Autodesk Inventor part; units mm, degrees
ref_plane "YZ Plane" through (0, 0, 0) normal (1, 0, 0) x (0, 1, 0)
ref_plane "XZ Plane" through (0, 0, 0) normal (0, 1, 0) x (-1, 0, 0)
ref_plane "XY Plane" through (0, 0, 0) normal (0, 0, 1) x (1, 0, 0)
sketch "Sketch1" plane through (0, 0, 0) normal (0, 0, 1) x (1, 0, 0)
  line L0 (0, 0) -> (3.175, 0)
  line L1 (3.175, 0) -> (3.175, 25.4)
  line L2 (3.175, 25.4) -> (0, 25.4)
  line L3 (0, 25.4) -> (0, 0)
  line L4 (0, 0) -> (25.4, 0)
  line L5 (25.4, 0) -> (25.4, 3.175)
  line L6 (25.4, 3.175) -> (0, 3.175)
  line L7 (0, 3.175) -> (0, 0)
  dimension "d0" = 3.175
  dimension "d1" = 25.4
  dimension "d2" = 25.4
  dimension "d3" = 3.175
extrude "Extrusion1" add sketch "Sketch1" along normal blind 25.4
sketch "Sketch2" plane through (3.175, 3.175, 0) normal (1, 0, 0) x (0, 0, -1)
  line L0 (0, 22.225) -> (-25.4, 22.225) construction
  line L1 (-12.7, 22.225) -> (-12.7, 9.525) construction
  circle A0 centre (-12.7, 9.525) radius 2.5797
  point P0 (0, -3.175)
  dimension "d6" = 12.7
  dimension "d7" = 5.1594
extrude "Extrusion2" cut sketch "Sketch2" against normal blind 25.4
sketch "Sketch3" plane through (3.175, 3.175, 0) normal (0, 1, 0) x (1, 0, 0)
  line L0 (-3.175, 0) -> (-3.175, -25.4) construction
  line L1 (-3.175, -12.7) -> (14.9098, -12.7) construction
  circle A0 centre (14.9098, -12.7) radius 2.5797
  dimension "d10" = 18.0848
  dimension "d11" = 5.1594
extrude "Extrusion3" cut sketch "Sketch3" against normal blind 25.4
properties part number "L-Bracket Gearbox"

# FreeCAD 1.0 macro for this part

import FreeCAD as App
import Part
import Sketcher

V = App.Vector
Q = App.Units.Quantity

doc = App.newDocument("Part")
body = doc.addObject("PartDesign::Body", "Body")

# Sketch on XY plane
sketch1 = body.newObject("Sketcher::SketchObject", "Sketch")
sketch1.AttachmentSupport = (doc.getObject("XY_Plane"), [""])
sketch1.MapMode = "FlatFace"
sketch1.addGeometry([
    Part.LineSegment(V(0, 0, 0), V(25.4, 0, 0)),  # 0
    Part.LineSegment(V(25.4, 0, 0), V(25.4, 3.175, 0)),  # 1
    Part.LineSegment(V(25.4, 3.175, 0), V(3.175, 3.175, 0)),  # 2
    Part.LineSegment(V(3.175, 3.175, 0), V(3.175, 25.4, 0)),  # 3
    Part.LineSegment(V(3.175, 25.4, 0), V(0, 25.4, 0)),  # 4
    Part.LineSegment(V(0, 25.4, 0), V(0, 0, 0)),  # 5
], False)
sketch1.addConstraint([
    Sketcher.Constraint("Coincident", 0, 2, 1, 1),
    Sketcher.Constraint("Coincident", 1, 2, 2, 1),
    Sketcher.Constraint("Coincident", 2, 2, 3, 1),
    Sketcher.Constraint("Coincident", 3, 2, 4, 1),
    Sketcher.Constraint("Coincident", 4, 2, 5, 1),
    Sketcher.Constraint("Coincident", 5, 2, 0, 1),
    Sketcher.Constraint("Horizontal", 0),
    Sketcher.Constraint("Vertical", 1),
    Sketcher.Constraint("Horizontal", 2),
    Sketcher.Constraint("Vertical", 3),
    Sketcher.Constraint("Horizontal", 4),
    Sketcher.Constraint("Vertical", 5),
    Sketcher.Constraint("Coincident", 5, 2, -1, 1),
    Sketcher.Constraint("Equal", 4, 1),
    Sketcher.Constraint("Equal", 2, 3),
    Sketcher.Constraint("DistanceX", 0, 1, 0, 2, Q("1 in")),
    Sketcher.Constraint("DistanceX", 4, 2, 4, 1, Q("0.125 in")),
])
pad1 = body.newObject("PartDesign::Pad", "Pad")
pad1.Profile = sketch1
pad1.Length = Q("1 in")

# Sketch on YZ plane
sketch2 = body.newObject("Sketcher::SketchObject", "Sketch001")
sketch2.AttachmentSupport = (doc.getObject("YZ_Plane"), [""])
sketch2.MapMode = "FlatFace"
sketch2.AttachmentOffset = App.Placement(V(0, 0, 0.125 * 25.4), App.Rotation())
sketch2.addGeometry(Part.Circle(V(12.7, 12.7, 0), V(0, 0, 1), 2.5797), False)
sketch2.addConstraint([
    Sketcher.Constraint("Diameter", 0, Q("0.203126 in")),
    Sketcher.Constraint("DistanceX", -1, 1, 0, 3, Q("0.5 in")),
    Sketcher.Constraint("DistanceY", -1, 1, 0, 3, Q("0.5 in")),
])
pocket1 = body.newObject("PartDesign::Pocket", "Pocket")
pocket1.Profile = sketch2
pocket1.Length = Q("1 in")

# Sketch on XZ plane
sketch3 = body.newObject("Sketcher::SketchObject", "Sketch002")
sketch3.AttachmentSupport = (doc.getObject("XZ_Plane"), [""])
sketch3.MapMode = "FlatFace"
sketch3.AttachmentOffset = App.Placement(V(0, 0, -0.125 * 25.4), App.Rotation())
sketch3.addGeometry(Part.Circle(V(18.0848, 12.7, 0), V(0, 0, 1), 2.5797), False)
sketch3.addConstraint([
    Sketcher.Constraint("Diameter", 0, Q("0.203126 in")),
    Sketcher.Constraint("DistanceX", -1, 1, 0, 3, Q("0.712 in")),
    Sketcher.Constraint("DistanceY", -1, 1, 0, 3, Q("0.5 in")),
])
pocket2 = body.newObject("PartDesign::Pocket", "Pocket001")
pocket2.Profile = sketch3
pocket2.Length = Q("1 in")
pocket2.Reversed = True

doc.recompute()
